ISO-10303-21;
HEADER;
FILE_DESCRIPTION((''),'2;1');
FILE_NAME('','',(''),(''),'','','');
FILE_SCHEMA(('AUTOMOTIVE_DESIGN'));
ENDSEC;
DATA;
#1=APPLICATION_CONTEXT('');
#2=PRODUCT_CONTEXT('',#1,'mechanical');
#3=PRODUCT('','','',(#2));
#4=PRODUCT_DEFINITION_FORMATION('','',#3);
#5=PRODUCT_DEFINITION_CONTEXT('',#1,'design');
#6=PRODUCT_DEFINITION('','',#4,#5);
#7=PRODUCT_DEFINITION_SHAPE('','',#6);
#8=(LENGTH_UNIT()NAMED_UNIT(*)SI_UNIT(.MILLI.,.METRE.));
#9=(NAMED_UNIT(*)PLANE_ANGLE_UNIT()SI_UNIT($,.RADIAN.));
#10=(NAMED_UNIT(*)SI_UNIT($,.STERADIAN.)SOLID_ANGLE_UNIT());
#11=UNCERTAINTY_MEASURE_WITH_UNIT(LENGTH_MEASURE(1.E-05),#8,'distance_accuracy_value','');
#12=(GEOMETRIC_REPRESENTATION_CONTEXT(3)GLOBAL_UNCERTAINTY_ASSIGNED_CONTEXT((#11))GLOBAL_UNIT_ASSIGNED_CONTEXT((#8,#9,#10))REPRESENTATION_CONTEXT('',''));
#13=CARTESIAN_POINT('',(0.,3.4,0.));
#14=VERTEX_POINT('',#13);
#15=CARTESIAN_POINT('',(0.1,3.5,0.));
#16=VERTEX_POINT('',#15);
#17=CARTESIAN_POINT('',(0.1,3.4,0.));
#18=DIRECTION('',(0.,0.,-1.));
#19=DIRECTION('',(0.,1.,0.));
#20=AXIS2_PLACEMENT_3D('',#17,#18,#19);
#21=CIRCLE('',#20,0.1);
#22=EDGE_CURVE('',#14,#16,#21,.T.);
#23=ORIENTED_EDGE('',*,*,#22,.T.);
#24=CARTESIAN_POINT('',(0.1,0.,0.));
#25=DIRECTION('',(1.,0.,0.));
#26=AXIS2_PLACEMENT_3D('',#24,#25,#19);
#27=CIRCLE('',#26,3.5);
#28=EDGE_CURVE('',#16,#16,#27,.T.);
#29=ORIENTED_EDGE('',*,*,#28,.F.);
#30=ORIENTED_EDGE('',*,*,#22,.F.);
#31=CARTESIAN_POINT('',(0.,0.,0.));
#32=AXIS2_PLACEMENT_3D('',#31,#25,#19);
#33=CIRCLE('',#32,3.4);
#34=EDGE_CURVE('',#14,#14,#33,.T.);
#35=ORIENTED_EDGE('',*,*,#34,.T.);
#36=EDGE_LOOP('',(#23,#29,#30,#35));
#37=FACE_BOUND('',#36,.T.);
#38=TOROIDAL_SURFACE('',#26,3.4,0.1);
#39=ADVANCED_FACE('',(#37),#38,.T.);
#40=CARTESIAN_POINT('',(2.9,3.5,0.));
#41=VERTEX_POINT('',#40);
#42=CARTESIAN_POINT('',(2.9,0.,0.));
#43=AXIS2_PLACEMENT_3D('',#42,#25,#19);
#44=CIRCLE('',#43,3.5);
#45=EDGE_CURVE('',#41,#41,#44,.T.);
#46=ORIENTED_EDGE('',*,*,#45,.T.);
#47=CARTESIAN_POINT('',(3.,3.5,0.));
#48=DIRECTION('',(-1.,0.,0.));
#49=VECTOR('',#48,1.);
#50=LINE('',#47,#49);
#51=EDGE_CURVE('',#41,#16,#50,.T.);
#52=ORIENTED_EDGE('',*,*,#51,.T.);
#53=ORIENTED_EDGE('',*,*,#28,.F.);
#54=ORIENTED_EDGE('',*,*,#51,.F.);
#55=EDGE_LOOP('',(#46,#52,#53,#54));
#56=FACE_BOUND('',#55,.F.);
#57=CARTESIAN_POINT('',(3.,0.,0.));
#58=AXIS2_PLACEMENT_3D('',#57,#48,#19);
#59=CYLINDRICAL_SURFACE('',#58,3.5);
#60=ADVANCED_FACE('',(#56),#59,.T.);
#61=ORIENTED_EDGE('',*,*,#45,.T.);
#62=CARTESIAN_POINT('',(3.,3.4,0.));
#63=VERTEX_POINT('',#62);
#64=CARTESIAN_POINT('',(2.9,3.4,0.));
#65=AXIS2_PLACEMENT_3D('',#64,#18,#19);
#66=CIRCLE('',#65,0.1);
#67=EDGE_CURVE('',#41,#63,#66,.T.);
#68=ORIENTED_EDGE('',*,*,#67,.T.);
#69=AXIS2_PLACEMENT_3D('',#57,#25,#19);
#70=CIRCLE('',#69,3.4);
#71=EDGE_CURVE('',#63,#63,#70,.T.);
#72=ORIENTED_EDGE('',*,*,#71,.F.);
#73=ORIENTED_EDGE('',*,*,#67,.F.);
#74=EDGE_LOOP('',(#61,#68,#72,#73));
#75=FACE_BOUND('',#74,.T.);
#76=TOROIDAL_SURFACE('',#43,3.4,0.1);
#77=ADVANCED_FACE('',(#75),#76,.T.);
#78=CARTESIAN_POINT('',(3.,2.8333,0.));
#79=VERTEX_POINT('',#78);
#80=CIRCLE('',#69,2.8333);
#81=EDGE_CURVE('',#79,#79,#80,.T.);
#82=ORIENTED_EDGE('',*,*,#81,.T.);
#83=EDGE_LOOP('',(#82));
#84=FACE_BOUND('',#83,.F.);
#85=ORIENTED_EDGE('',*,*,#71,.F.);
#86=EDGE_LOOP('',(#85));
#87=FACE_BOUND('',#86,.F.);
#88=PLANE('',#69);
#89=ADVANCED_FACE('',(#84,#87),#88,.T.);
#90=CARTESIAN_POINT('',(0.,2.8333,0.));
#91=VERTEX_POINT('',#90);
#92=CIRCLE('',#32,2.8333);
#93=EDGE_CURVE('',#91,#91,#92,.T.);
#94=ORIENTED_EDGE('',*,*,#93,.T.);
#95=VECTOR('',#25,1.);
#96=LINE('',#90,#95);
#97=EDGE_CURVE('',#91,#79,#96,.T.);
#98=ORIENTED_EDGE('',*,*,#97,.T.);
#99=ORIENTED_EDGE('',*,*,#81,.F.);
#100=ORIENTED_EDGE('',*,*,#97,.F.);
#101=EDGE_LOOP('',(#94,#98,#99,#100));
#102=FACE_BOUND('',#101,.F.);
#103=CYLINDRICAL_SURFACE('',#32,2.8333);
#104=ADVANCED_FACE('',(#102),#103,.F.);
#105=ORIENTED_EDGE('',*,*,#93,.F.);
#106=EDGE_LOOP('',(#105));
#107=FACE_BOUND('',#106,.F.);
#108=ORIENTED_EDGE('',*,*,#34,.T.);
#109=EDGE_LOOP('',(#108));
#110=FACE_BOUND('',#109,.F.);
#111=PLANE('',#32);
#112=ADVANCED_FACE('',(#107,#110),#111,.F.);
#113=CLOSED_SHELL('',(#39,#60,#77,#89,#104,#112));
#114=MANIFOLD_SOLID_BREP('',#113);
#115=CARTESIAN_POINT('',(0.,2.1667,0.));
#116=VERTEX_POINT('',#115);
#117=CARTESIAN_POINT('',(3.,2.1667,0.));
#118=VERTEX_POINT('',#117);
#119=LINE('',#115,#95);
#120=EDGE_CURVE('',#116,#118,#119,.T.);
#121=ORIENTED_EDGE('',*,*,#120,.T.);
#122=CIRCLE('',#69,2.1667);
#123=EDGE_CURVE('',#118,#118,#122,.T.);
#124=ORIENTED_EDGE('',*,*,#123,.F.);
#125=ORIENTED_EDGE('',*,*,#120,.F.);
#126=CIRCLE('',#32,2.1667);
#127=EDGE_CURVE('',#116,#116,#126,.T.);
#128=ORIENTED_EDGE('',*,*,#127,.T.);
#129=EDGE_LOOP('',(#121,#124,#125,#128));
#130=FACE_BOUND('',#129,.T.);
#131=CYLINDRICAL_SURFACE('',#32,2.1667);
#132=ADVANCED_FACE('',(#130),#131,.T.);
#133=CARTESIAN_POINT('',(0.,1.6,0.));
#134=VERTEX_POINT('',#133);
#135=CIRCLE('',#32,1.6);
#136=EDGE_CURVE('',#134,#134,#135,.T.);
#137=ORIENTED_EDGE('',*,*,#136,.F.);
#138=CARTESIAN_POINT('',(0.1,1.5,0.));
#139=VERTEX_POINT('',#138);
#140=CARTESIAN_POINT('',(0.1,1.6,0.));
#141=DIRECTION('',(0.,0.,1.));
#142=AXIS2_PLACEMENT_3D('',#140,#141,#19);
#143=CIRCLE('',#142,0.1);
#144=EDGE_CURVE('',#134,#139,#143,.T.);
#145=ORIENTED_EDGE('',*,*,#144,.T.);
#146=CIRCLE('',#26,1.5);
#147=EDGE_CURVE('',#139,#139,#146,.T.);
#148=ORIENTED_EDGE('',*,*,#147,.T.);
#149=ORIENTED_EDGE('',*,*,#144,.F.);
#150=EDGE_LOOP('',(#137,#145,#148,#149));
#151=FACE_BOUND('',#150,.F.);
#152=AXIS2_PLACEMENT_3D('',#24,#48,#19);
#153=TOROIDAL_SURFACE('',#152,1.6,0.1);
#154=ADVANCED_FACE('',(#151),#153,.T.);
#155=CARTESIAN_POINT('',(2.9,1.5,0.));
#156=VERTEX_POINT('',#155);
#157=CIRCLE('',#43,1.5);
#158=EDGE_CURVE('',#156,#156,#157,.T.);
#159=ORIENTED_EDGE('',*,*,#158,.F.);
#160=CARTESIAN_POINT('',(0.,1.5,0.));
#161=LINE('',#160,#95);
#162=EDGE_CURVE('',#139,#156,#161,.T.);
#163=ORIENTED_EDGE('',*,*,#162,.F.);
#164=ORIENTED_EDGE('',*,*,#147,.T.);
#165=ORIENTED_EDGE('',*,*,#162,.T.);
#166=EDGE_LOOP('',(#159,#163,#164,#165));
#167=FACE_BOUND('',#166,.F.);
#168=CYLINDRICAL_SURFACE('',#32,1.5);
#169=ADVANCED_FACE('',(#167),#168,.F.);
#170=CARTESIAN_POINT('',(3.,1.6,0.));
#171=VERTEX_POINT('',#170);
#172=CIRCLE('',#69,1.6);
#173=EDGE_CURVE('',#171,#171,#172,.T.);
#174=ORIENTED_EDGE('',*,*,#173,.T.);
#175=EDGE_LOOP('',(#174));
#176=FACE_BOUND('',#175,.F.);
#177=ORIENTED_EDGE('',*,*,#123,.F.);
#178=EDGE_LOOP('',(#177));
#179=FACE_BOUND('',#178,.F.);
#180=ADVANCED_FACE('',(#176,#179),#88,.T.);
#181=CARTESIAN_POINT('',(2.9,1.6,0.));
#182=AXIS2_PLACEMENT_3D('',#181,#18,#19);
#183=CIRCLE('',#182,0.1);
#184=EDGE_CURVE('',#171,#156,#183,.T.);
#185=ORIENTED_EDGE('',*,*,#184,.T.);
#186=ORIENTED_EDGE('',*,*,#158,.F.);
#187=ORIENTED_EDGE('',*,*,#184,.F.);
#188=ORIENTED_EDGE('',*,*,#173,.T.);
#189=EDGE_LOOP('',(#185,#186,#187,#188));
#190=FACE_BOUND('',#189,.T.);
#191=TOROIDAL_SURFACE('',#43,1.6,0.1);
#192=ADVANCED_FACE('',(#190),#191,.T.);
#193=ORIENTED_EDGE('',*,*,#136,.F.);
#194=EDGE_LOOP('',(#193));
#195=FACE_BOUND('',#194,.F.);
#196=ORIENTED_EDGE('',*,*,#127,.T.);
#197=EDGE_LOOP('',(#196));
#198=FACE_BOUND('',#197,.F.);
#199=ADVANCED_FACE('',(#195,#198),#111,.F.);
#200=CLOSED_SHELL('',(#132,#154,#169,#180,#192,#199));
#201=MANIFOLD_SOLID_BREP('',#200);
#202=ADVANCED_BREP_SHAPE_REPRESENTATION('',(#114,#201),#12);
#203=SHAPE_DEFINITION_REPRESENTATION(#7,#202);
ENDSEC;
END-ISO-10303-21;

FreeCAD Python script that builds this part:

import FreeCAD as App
import Part
import Sketcher
from FreeCAD import Vector


def edges_at(feature, points):
    """Names of the edges that pass closest to the given points."""
    edges = feature.Shape.Edges
    near = lambda p: min(range(len(edges)), key=lambda i: edges[i].distToShape(Part.Vertex(*p))[0])
    return sorted({f"Edge{near(p) + 1}" for p in points})


def add_polygon(sketch, points):
    """Adds a closed chain of lines whose ends are joined by coincident constraints."""
    first, n = sketch.GeometryCount, len(points)
    for a, b in zip(points, points[1:] + points[:1]):
        sketch.addGeometry(Part.LineSegment(App.Vector(*a, 0), App.Vector(*b, 0)), False)
    for i in range(n):
        sketch.addConstraint(Sketcher.Constraint("Coincident", first + i, 2, first + (i + 1) % n, 1))

doc = App.newDocument("Part")
body = doc.addObject("PartDesign::Body", "Body")
body.AllowCompound = True

# Sketch on XY plane
sketch1 = body.newObject("Sketcher::SketchObject", "Sketch")
sketch1.AttachmentSupport = (doc.getObject("XY_Plane"), [""])
sketch1.MapMode = "FlatFace"
add_polygon(sketch1, [(0, 2.2), (0, 1.5), (3, 1.5), (3, 2.2)])  # lines 0-3
add_polygon(sketch1, [(0, 3.5), (0, 2.8), (3, 2.8), (3, 3.5)])  # lines 4-7
sketch1.addConstraint([
    Sketcher.Constraint("Vertical", 0),
    Sketcher.Constraint("Horizontal", 1),
    Sketcher.Constraint("Vertical", 2),
    Sketcher.Constraint("Horizontal", 3),
    Sketcher.Constraint("Vertical", 4),
    Sketcher.Constraint("Horizontal", 5),
    Sketcher.Constraint("Vertical", 6),
    Sketcher.Constraint("Horizontal", 7),
    Sketcher.Constraint("PointOnObject", 0, 2, -2),
    Sketcher.Constraint("PointOnObject", 4, 2, -2),
    Sketcher.Constraint("Vertical", 2, 2, 5, 2),
    Sketcher.Constraint("Equal", 2, 4),
    Sketcher.Constraint("DistanceX", 1, 1, 1, 2, 3.0),
    Sketcher.Constraint("DistanceY", 1, 2, 6, 2, 2.0),
    Sketcher.Constraint("DistanceY", -1, 1, 0, 2, 1.5),
    Sketcher.Constraint("DistanceY", 0, 2, 0, 1, 0.6667),
])
revolution = body.newObject("PartDesign::Revolution", "Revolution")
revolution.Profile = sketch1
revolution.ReferenceAxis = (sketch1, ["H_Axis"])
revolution.Angle = 360
doc.recompute()

fillet = body.newObject("PartDesign::Fillet", "Fillet")
fillet.Base = (revolution, edges_at(revolution, [
    (0, -3.5, 0),
    (3, -3.5, 0),
    (0, -1.5, 0),
    (3, -1.5, 0),
]))
fillet.Radius = 0.1

doc.recompute()
